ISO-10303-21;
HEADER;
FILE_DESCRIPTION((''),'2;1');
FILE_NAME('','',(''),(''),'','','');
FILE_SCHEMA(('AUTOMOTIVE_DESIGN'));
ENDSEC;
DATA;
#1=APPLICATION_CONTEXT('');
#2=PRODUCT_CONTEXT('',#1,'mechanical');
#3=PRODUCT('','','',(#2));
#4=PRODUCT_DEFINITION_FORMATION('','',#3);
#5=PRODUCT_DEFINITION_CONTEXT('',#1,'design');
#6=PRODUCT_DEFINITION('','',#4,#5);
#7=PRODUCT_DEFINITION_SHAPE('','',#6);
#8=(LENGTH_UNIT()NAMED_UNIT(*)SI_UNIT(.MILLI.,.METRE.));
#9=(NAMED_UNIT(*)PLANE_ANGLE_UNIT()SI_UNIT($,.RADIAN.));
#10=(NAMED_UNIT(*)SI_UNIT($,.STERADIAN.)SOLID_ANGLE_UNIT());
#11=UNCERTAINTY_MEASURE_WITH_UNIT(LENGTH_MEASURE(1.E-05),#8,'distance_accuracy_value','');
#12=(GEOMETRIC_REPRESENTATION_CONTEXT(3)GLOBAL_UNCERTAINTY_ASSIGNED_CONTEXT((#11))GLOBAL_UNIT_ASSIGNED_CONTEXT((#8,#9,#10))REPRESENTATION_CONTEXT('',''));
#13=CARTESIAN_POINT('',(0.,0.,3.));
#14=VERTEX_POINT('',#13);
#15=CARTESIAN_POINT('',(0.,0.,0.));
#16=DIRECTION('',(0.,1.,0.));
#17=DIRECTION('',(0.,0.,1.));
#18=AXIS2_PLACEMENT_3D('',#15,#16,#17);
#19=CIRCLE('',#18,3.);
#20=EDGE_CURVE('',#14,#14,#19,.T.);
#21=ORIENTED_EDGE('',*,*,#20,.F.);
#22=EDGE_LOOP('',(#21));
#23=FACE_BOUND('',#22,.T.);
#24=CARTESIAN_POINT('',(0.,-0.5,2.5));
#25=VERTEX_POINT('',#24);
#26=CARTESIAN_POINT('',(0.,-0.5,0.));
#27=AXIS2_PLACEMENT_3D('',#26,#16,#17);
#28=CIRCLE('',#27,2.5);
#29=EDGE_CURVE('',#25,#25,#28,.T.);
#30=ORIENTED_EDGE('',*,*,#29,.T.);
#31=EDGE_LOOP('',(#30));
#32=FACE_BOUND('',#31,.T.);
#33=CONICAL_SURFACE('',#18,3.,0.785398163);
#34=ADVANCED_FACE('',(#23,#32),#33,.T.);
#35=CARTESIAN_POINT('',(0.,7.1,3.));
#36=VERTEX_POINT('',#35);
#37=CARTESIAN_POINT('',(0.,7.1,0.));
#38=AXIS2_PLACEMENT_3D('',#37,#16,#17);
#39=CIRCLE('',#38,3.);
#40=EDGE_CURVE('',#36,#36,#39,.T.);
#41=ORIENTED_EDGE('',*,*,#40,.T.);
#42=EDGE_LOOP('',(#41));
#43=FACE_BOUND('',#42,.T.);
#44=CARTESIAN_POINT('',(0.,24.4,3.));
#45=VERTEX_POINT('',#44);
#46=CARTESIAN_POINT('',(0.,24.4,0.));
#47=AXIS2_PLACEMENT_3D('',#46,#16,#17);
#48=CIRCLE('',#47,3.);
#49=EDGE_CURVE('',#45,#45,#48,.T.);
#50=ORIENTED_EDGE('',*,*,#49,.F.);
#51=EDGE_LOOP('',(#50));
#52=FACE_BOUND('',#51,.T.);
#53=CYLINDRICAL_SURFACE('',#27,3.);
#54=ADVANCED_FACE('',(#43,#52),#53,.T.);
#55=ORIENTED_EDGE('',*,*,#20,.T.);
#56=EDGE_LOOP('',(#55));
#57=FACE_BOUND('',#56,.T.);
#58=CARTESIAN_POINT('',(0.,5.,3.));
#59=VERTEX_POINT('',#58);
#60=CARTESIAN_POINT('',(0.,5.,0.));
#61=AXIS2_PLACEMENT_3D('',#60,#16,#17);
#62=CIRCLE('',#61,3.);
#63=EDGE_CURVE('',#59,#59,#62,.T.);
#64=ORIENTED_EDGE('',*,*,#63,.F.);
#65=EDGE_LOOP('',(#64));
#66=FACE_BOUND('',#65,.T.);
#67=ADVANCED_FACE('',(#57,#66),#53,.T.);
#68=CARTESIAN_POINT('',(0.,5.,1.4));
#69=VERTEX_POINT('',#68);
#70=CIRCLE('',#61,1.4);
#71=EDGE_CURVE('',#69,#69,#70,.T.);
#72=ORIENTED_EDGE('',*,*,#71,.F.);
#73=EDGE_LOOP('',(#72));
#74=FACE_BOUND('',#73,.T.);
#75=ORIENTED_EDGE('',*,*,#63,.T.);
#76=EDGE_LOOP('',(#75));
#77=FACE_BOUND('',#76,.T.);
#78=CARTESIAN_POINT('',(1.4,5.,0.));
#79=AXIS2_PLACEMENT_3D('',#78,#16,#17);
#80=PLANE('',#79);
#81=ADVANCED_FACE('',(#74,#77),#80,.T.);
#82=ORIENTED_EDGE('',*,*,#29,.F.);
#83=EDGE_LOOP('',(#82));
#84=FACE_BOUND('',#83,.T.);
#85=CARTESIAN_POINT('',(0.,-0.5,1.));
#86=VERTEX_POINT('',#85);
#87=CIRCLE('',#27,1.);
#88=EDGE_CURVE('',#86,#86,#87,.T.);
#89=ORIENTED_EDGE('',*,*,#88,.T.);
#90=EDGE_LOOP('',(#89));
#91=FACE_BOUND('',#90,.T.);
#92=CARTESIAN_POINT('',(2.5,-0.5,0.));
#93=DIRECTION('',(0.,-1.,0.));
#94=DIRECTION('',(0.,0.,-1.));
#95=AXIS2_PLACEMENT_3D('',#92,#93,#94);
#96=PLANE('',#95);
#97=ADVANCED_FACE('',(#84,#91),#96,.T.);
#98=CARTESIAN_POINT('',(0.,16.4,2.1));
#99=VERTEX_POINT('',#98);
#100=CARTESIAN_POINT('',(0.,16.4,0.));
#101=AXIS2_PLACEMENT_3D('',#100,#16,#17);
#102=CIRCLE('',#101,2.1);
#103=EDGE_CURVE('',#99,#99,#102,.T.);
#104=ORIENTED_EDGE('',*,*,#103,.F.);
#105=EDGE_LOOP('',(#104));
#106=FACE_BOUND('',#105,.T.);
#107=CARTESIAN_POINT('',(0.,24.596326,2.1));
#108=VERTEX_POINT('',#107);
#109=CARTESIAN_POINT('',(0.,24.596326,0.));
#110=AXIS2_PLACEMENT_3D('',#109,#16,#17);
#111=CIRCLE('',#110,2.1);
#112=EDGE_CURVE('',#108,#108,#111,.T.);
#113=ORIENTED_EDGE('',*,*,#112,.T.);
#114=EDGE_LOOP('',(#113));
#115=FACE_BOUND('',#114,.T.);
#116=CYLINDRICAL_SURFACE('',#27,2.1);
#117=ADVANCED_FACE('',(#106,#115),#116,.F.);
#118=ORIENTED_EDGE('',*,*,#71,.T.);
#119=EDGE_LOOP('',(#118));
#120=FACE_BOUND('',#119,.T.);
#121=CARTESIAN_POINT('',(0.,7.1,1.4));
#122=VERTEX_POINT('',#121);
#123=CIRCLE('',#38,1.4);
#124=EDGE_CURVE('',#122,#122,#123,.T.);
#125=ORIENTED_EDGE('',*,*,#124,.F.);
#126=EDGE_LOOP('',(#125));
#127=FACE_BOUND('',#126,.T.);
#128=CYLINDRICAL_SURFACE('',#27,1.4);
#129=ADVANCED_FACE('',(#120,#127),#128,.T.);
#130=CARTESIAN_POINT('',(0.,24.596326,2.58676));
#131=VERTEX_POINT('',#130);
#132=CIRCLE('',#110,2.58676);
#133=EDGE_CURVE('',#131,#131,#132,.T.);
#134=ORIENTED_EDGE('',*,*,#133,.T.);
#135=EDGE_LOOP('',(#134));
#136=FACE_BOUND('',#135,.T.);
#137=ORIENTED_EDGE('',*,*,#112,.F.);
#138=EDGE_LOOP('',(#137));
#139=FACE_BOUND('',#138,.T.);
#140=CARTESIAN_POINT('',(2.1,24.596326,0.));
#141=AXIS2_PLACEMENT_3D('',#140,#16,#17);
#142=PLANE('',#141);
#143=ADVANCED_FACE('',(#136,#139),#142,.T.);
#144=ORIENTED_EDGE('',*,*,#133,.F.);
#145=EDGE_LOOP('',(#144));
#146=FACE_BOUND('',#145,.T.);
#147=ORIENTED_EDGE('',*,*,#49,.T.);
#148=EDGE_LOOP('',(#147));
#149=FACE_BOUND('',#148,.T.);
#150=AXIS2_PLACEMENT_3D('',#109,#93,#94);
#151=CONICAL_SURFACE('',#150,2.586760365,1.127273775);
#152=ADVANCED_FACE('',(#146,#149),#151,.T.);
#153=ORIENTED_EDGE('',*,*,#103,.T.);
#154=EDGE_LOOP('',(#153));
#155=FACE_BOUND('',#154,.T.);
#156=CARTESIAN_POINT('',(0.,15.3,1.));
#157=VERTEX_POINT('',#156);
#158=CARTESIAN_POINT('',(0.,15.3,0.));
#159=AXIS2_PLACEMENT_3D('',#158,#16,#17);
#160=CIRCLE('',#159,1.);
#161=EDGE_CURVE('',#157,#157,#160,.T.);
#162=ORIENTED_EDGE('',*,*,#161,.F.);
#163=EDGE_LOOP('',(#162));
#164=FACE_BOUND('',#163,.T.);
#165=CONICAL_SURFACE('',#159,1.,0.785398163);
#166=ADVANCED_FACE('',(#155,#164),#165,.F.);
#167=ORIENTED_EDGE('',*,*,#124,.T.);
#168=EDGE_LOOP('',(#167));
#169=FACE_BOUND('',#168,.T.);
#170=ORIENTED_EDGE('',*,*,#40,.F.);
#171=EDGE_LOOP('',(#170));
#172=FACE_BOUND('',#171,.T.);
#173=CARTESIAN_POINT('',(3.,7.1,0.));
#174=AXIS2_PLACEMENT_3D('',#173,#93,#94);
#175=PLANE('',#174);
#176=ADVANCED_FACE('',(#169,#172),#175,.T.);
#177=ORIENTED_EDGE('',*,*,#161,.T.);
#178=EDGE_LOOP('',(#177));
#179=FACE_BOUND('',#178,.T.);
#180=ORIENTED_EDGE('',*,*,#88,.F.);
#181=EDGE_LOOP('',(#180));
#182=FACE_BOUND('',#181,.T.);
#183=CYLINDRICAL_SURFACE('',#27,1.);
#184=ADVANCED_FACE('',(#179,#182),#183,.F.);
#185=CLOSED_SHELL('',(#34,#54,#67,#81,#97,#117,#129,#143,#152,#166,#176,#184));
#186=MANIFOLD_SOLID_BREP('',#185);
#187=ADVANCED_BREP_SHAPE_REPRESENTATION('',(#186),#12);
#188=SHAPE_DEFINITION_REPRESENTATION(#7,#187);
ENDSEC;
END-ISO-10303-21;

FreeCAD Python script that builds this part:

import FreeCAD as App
import Part
import Sketcher

V = App.Vector
Q = App.Units.Quantity


def add_polygon(sketch, points):
    """Adds a closed chain of lines whose ends are joined by coincident constraints."""
    first, n = sketch.GeometryCount, len(points)
    for a, b in zip(points, points[1:] + points[:1]):
        sketch.addGeometry(Part.LineSegment(App.Vector(*a, 0), App.Vector(*b, 0)), False)
    for i in range(n):
        sketch.addConstraint(Sketcher.Constraint("Coincident", first + i, 2, first + (i + 1) % n, 1))

doc = App.newDocument("Part")
body = doc.addObject("PartDesign::Body", "Body")

sketch1 = doc.addObject("Sketcher::SketchObject", "Sketch")
body.addObject(sketch1)
sketch1.AttachmentSupport = (doc.XY_Plane, [""])
sketch1.MapMode = "FlatFace"
add_polygon(sketch1, [(2.5, -0.5), (1, -0.5), (1, 15.3), (2.1, 16.4), (2.1, 24.6), (2.59, 24.6), (3, 24.4), (3, 7.1), (1.4, 7.1), (1.4, 5), (3, 5), (3, 0)])
sketch1.addConstraint([
    Sketcher.Constraint("Horizontal", 0),
    Sketcher.Constraint("Vertical", 1),
    Sketcher.Constraint("Vertical", 3),
    Sketcher.Constraint("Horizontal", 4),
    Sketcher.Constraint("Vertical", 6),
    Sketcher.Constraint("Horizontal", 7),
    Sketcher.Constraint("Vertical", 8),
    Sketcher.Constraint("Horizontal", 9),
    Sketcher.Constraint("Vertical", 10),
    Sketcher.Constraint("PointOnObject", 10, 2, -1),
    Sketcher.Constraint("Parallel", 2, 11),
    Sketcher.Constraint("Vertical", 6, 2, 9, 2),
    Sketcher.Constraint("DistanceY", 10, 2, 10, 1, Q("5 mm")),
    Sketcher.Constraint("Angle", 2, Q("45 deg")),
    Sketcher.Constraint("DistanceX", 0, 2, 0, 1, Q("1.5 mm")),
    Sketcher.Constraint("DistanceX", 7, 2, 7, 1, Q("1.6 mm")),
    Sketcher.Constraint("DistanceY", 1, 1, 1, 2, Q("15.8 mm")),
    Sketcher.Constraint("DistanceY", 6, 2, 6, 1, Q("17.3 mm")),
    Sketcher.Constraint("DistanceY", 8, 2, 8, 1, Q("2.1 mm")),
    Sketcher.Constraint("DistanceX", -1, 1, 0, 2, Q("1 mm")),
    Sketcher.Constraint("DistanceX", -1, 1, 5, 2, Q("3 mm")),
    Sketcher.Constraint("DistanceY", 2, 2, 5, 2, Q("8 mm")),
    Sketcher.Constraint("DistanceX", 4, 1, 4, 2, Q("0.48676 mm")),
    Sketcher.Constraint("DistanceY", 3, 1, 3, 2, Q("8.196326 mm")),
])
revolution = doc.addObject("PartDesign::Revolution", "Revolution")
body.addObject(revolution)
revolution.Profile = sketch1
revolution.ReferenceAxis = (sketch1, ["V_Axis"])
revolution.Angle = 360

doc.recompute()
